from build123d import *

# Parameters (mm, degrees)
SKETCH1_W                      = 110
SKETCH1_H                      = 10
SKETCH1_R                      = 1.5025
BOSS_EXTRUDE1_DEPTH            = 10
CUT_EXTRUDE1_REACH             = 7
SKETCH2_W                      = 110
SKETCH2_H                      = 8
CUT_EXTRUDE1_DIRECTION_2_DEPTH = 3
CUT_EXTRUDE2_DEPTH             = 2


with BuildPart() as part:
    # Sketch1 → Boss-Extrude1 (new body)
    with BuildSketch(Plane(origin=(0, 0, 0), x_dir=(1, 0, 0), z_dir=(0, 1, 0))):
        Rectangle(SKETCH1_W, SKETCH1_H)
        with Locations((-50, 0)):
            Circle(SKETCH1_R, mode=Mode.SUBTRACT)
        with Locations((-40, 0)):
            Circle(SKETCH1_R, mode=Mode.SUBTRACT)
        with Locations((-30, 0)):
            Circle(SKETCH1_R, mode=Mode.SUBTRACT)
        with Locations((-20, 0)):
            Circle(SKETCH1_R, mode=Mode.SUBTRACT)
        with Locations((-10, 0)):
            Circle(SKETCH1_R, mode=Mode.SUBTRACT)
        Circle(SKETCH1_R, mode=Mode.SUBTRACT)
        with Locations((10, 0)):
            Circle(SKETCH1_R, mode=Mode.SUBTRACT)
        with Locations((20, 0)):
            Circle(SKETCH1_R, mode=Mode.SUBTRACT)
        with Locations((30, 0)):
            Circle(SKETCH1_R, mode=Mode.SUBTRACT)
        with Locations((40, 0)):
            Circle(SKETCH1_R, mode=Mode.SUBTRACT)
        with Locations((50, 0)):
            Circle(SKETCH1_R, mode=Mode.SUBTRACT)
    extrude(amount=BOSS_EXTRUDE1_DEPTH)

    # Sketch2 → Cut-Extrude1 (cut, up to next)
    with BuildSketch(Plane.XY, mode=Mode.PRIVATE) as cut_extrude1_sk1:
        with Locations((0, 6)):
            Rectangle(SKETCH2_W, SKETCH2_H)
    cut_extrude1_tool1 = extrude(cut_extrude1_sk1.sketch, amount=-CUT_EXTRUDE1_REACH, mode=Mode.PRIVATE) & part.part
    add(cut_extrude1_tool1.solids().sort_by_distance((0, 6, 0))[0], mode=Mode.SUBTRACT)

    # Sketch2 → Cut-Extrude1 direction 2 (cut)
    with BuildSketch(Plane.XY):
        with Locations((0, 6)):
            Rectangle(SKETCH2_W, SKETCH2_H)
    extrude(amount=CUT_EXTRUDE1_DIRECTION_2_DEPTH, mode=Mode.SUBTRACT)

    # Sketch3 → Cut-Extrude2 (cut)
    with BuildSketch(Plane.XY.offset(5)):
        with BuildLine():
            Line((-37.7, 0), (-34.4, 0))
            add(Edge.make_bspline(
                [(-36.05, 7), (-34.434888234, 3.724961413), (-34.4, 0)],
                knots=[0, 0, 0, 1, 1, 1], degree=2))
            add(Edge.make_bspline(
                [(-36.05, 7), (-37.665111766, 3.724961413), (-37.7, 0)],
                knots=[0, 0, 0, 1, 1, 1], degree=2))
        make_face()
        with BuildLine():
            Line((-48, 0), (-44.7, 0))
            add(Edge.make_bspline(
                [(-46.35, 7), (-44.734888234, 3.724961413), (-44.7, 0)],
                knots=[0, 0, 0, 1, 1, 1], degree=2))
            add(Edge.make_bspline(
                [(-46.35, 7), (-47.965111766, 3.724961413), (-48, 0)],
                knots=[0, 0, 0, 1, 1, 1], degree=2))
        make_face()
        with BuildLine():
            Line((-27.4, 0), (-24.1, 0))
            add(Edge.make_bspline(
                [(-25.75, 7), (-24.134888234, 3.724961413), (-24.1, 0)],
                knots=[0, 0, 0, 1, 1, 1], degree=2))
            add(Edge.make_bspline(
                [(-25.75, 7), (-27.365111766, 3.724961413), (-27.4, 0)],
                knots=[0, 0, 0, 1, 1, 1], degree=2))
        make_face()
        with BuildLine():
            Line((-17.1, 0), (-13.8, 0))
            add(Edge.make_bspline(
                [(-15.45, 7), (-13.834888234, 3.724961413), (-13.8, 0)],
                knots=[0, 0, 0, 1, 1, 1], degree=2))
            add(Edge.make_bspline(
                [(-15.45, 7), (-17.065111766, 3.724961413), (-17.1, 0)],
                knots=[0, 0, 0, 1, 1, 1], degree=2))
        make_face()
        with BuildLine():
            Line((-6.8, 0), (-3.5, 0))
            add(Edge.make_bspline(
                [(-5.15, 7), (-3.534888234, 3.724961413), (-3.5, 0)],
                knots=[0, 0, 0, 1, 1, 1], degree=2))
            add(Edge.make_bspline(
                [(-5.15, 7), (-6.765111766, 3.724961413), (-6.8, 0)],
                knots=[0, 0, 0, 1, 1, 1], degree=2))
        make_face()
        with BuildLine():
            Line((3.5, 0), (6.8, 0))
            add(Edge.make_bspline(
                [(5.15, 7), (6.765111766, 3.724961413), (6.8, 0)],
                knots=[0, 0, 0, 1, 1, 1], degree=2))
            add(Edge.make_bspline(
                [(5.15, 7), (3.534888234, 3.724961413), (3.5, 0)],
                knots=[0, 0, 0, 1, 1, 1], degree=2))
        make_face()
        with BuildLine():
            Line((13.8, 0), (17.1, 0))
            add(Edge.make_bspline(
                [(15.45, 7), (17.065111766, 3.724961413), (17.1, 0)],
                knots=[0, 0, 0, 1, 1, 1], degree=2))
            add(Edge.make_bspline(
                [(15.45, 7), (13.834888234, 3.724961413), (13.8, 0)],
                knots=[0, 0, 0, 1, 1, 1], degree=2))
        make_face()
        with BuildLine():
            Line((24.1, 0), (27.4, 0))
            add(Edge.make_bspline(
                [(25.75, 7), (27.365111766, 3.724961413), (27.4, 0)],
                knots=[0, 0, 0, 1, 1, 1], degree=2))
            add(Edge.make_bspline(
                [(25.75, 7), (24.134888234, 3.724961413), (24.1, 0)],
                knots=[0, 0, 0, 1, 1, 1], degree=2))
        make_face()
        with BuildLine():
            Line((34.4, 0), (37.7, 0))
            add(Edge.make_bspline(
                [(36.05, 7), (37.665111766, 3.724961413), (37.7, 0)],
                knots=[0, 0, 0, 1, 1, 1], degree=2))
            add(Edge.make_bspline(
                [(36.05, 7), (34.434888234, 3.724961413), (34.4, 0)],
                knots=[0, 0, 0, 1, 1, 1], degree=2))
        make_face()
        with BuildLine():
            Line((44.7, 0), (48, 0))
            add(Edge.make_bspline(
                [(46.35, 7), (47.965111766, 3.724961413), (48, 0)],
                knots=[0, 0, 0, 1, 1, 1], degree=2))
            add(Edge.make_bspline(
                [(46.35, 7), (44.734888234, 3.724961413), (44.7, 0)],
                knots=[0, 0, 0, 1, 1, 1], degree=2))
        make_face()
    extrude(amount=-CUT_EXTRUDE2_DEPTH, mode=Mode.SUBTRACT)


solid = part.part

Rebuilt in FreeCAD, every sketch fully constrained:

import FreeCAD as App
import Part
import Sketcher


def add_polygon(sketch, points):
    """Adds a closed chain of lines whose ends are joined by coincident constraints."""
    first, n = sketch.GeometryCount, len(points)
    for a, b in zip(points, points[1:] + points[:1]):
        sketch.addGeometry(Part.LineSegment(App.Vector(*a, 0), App.Vector(*b, 0)), False)
    for i in range(n):
        sketch.addConstraint(Sketcher.Constraint("Coincident", first + i, 2, first + (i + 1) % n, 1))

doc = App.newDocument("Part")
body = doc.addObject("PartDesign::Body", "Body")

# Sketch on XZ plane
sketch1 = body.newObject("Sketcher::SketchObject", "Sketch")
sketch1.AttachmentSupport = (doc.getObject("XZ_Plane"), [""])
sketch1.MapMode = "FlatFace"
add_polygon(sketch1, [(-55, -5), (-55, 5), (55, 5), (55, -5)])  # lines 0-3
sketch1.addGeometry(Part.Circle(App.Vector(-50, 0, 0), App.Vector(0, 0, 1), 1.5), False)  # 4
sketch1.addGeometry(Part.Circle(App.Vector(-40, 0, 0), App.Vector(0, 0, 1), 1.5), False)  # 5
sketch1.addGeometry(Part.Circle(App.Vector(-30, 0, 0), App.Vector(0, 0, 1), 1.5), False)  # 6
sketch1.addGeometry(Part.Circle(App.Vector(-20, 0, 0), App.Vector(0, 0, 1), 1.5), False)  # 7
sketch1.addGeometry(Part.Circle(App.Vector(-10, 0, 0), App.Vector(0, 0, 1), 1.5), False)  # 8
sketch1.addGeometry(Part.Circle(App.Vector(0, 0, 0), App.Vector(0, 0, 1), 1.5), False)  # 9
sketch1.addGeometry(Part.Circle(App.Vector(10, 0, 0), App.Vector(0, 0, 1), 1.5), False)  # 10
sketch1.addGeometry(Part.Circle(App.Vector(20, 0, 0), App.Vector(0, 0, 1), 1.5), False)  # 11
sketch1.addGeometry(Part.Circle(App.Vector(30, 0, 0), App.Vector(0, 0, 1), 1.5), False)  # 12
sketch1.addGeometry(Part.Circle(App.Vector(40, 0, 0), App.Vector(0, 0, 1), 1.5), False)  # 13
sketch1.addGeometry(Part.Circle(App.Vector(50, 0, 0), App.Vector(0, 0, 1), 1.5), False)  # 14
sketch1.addConstraint([
    Sketcher.Constraint("Vertical", 0),
    Sketcher.Constraint("Horizontal", 1),
    Sketcher.Constraint("Vertical", 2),
    Sketcher.Constraint("Horizontal", 3),
    Sketcher.Constraint("Coincident", 9, 3, -1, 1),
    Sketcher.Constraint("Equal", 4, 5),
    Sketcher.Constraint("Equal", 5, 6),
    Sketcher.Constraint("Equal", 6, 7),
    Sketcher.Constraint("Equal", 7, 8),
    Sketcher.Constraint("Equal", 8, 9),
    Sketcher.Constraint("Equal", 9, 10),
    Sketcher.Constraint("Equal", 10, 11),
    Sketcher.Constraint("Equal", 11, 12),
    Sketcher.Constraint("Equal", 12, 13),
    Sketcher.Constraint("Equal", 13, 14),
    Sketcher.Constraint("Symmetric", 8, 3, 10, 3, -1, 1),
    Sketcher.Constraint("Symmetric", 7, 3, 11, 3, -1, 1),
    Sketcher.Constraint("Symmetric", 6, 3, 12, 3, -1, 1),
    Sketcher.Constraint("Symmetric", 5, 3, 13, 3, -1, 1),
    Sketcher.Constraint("Symmetric", 4, 3, 14, 3, -1, 1),
    Sketcher.Constraint("Symmetric", 0, 2, 2, 2, -1, 1),
    Sketcher.Constraint("PointOnObject", 4, 3, -1),
    Sketcher.Constraint("PointOnObject", 5, 3, -1),
    Sketcher.Constraint("PointOnObject", 6, 3, -1),
    Sketcher.Constraint("PointOnObject", 7, 3, -1),
    Sketcher.Constraint("PointOnObject", 8, 3, -1),
    Sketcher.Constraint("DistanceX", 1, 1, 1, 2, 110.0),
    Sketcher.Constraint("DistanceY", 0, 1, 0, 2, 10.0),
    Sketcher.Constraint("Diameter", 4, 3.005),
    Sketcher.Constraint("DistanceX", 4, 3, -1, 1, 50.0),
    Sketcher.Constraint("DistanceX", 5, 3, -1, 1, 40.0),
    Sketcher.Constraint("DistanceX", 6, 3, -1, 1, 30.0),
    Sketcher.Constraint("DistanceX", 7, 3, -1, 1, 20.0),
    Sketcher.Constraint("DistanceX", 8, 3, -1, 1, 10.0),
])
pad1 = body.newObject("PartDesign::Pad", "Pad")
pad1.Profile = sketch1
pad1.Length = 10
pad1.Reversed = True

# Sketch on XY plane
sketch2 = body.newObject("Sketcher::SketchObject", "Sketch001")
sketch2.AttachmentSupport = (doc.getObject("XY_Plane"), [""])
sketch2.MapMode = "FlatFace"
add_polygon(sketch2, [(-55, 10), (-55, 2), (55, 2), (55, 10)])  # lines 0-3
sketch2.addConstraint([
    Sketcher.Constraint("Vertical", 0),
    Sketcher.Constraint("Horizontal", 1),
    Sketcher.Constraint("Vertical", 2),
    Sketcher.Constraint("Horizontal", 3),
    Sketcher.Constraint("DistanceX", 1, 1, 1, 2, 110.0),
    Sketcher.Constraint("DistanceY", 0, 2, 0, 1, 8.0),
    Sketcher.Constraint("DistanceX", 0, 2, -1, 1, 55.0),
    Sketcher.Constraint("DistanceY", -1, 1, 0, 2, 2.0),
])
pocket1 = body.newObject("PartDesign::Pocket", "Pocket")
pocket1.Profile = sketch2
pocket1.Length = 5

# Sketch on XY plane
sketch3 = body.newObject("Sketcher::SketchObject", "Sketch002")
sketch3.AttachmentSupport = (doc.getObject("XY_Plane"), [""])
sketch3.MapMode = "FlatFace"
add_polygon(sketch3, [(-55, 10), (-55, 2), (55, 2), (55, 10)])  # lines 0-3
sketch3.addConstraint([
    Sketcher.Constraint("Vertical", 0),
    Sketcher.Constraint("Horizontal", 1),
    Sketcher.Constraint("Vertical", 2),
    Sketcher.Constraint("Horizontal", 3),
    Sketcher.Constraint("DistanceX", 1, 1, 1, 2, 110.0),
    Sketcher.Constraint("DistanceY", 0, 2, 0, 1, 8.0),
    Sketcher.Constraint("DistanceX", 0, 2, -1, 1, 55.0),
    Sketcher.Constraint("DistanceY", -1, 1, 0, 2, 2.0),
])
pocket2 = body.newObject("PartDesign::Pocket", "Pocket001")
pocket2.Profile = sketch3
pocket2.Length = 3
pocket2.Reversed = True

# Sketch on XY plane
sketch4 = body.newObject("Sketcher::SketchObject", "Sketch003")
sketch4.AttachmentSupport = (doc.getObject("XY_Plane"), [""])
sketch4.MapMode = "FlatFace"
sketch4.AttachmentOffset = App.Placement(App.Vector(0, 0, 5), App.Rotation())
sketch4.addGeometry([
    Part.LineSegment(App.Vector(-37.7, 0, 0), App.Vector(-34.4, 0, 0)),  # 0
    Part.BSplineCurve([App.Vector(-36.05, 7, 0), App.Vector(-34.434888, 3.724961, 0), App.Vector(-34.4, 0, 0)], [3, 3], [0, 1], False, 2, [1, 1, 1], False),  # 1
    Part.BSplineCurve([App.Vector(-36.05, 7, 0), App.Vector(-37.665112, 3.724961, 0), App.Vector(-37.7, 0, 0)], [3, 3], [0, 1], False, 2, [1, 1, 1], False),  # 2
    Part.LineSegment(App.Vector(-48, 0, 0), App.Vector(-44.7, 0, 0)),  # 3
    Part.BSplineCurve([App.Vector(-46.35, 7, 0), App.Vector(-44.734888, 3.724961, 0), App.Vector(-44.7, 0, 0)], [3, 3], [0, 1], False, 2, [1, 1, 1], False),  # 4
    Part.BSplineCurve([App.Vector(-46.35, 7, 0), App.Vector(-47.965112, 3.724961, 0), App.Vector(-48, 0, 0)], [3, 3], [0, 1], False, 2, [1, 1, 1], False),  # 5
    Part.LineSegment(App.Vector(-27.4, 0, 0), App.Vector(-24.1, 0, 0)),  # 6
    Part.BSplineCurve([App.Vector(-25.75, 7, 0), App.Vector(-24.134888, 3.724961, 0), App.Vector(-24.1, 0, 0)], [3, 3], [0, 1], False, 2, [1, 1, 1], False),  # 7
    Part.BSplineCurve([App.Vector(-25.75, 7, 0), App.Vector(-27.365112, 3.724961, 0), App.Vector(-27.4, 0, 0)], [3, 3], [0, 1], False, 2, [1, 1, 1], False),  # 8
    Part.LineSegment(App.Vector(-17.1, 0, 0), App.Vector(-13.8, 0, 0)),  # 9
    Part.BSplineCurve([App.Vector(-15.45, 7, 0), App.Vector(-13.834888, 3.724961, 0), App.Vector(-13.8, 0, 0)], [3, 3], [0, 1], False, 2, [1, 1, 1], False),  # 10
    Part.BSplineCurve([App.Vector(-15.45, 7, 0), App.Vector(-17.065112, 3.724961, 0), App.Vector(-17.1, 0, 0)], [3, 3], [0, 1], False, 2, [1, 1, 1], False),  # 11
    Part.LineSegment(App.Vector(-6.8, 0, 0), App.Vector(-3.5, 0, 0)),  # 12
    Part.BSplineCurve([App.Vector(-5.15, 7, 0), App.Vector(-3.534888, 3.724961, 0), App.Vector(-3.5, 0, 0)], [3, 3], [0, 1], False, 2, [1, 1, 1], False),  # 13
    Part.BSplineCurve([App.Vector(-5.15, 7, 0), App.Vector(-6.765112, 3.724961, 0), App.Vector(-6.8, 0, 0)], [3, 3], [0, 1], False, 2, [1, 1, 1], False),  # 14
    Part.LineSegment(App.Vector(3.5, 0, 0), App.Vector(6.8, 0, 0)),  # 15
    Part.BSplineCurve([App.Vector(5.15, 7, 0), App.Vector(6.765112, 3.724961, 0), App.Vector(6.8, 0, 0)], [3, 3], [0, 1], False, 2, [1, 1, 1], False),  # 16
    Part.BSplineCurve([App.Vector(5.15, 7, 0), App.Vector(3.534888, 3.724961, 0), App.Vector(3.5, 0, 0)], [3, 3], [0, 1], False, 2, [1, 1, 1], False),  # 17
    Part.LineSegment(App.Vector(13.8, 0, 0), App.Vector(17.1, 0, 0)),  # 18
    Part.BSplineCurve([App.Vector(15.45, 7, 0), App.Vector(17.065112, 3.724961, 0), App.Vector(17.1, 0, 0)], [3, 3], [0, 1], False, 2, [1, 1, 1], False),  # 19
    Part.BSplineCurve([App.Vector(15.45, 7, 0), App.Vector(13.834888, 3.724961, 0), App.Vector(13.8, 0, 0)], [3, 3], [0, 1], False, 2, [1, 1, 1], False),  # 20
    Part.LineSegment(App.Vector(24.1, 0, 0), App.Vector(27.4, 0, 0)),  # 21
    Part.BSplineCurve([App.Vector(25.75, 7, 0), App.Vector(27.365112, 3.724961, 0), App.Vector(27.4, 0, 0)], [3, 3], [0, 1], False, 2, [1, 1, 1], False),  # 22
    Part.BSplineCurve([App.Vector(25.75, 7, 0), App.Vector(24.134888, 3.724961, 0), App.Vector(24.1, 0, 0)], [3, 3], [0, 1], False, 2, [1, 1, 1], False),  # 23
    Part.LineSegment(App.Vector(34.4, 0, 0), App.Vector(37.7, 0, 0)),  # 24
    Part.BSplineCurve([App.Vector(36.05, 7, 0), App.Vector(37.665112, 3.724961, 0), App.Vector(37.7, 0, 0)], [3, 3], [0, 1], False, 2, [1, 1, 1], False),  # 25
    Part.BSplineCurve([App.Vector(36.05, 7, 0), App.Vector(34.434888, 3.724961, 0), App.Vector(34.4, 0, 0)], [3, 3], [0, 1], False, 2, [1, 1, 1], False),  # 26
    Part.LineSegment(App.Vector(44.7, 0, 0), App.Vector(48, 0, 0)),  # 27
    Part.BSplineCurve([App.Vector(46.35, 7, 0), App.Vector(47.965112, 3.724961, 0), App.Vector(48, 0, 0)], [3, 3], [0, 1], False, 2, [1, 1, 1], False),  # 28
    Part.BSplineCurve([App.Vector(46.35, 7, 0), App.Vector(44.734888, 3.724961, 0), App.Vector(44.7, 0, 0)], [3, 3], [0, 1], False, 2, [1, 1, 1], False),  # 29
], False)
sketch4.addConstraint([
    Sketcher.Constraint("Block", 1),
    Sketcher.Constraint("Block", 2),
    Sketcher.Constraint("Block", 4),
    Sketcher.Constraint("Block", 5),
    Sketcher.Constraint("Block", 7),
    Sketcher.Constraint("Block", 8),
    Sketcher.Constraint("Block", 10),
    Sketcher.Constraint("Block", 11),
    Sketcher.Constraint("Block", 13),
    Sketcher.Constraint("Block", 14),
    Sketcher.Constraint("Block", 16),
    Sketcher.Constraint("Block", 17),
    Sketcher.Constraint("Block", 19),
    Sketcher.Constraint("Block", 20),
    Sketcher.Constraint("Block", 22),
    Sketcher.Constraint("Block", 23),
    Sketcher.Constraint("Block", 25),
    Sketcher.Constraint("Block", 26),
    Sketcher.Constraint("Block", 28),
    Sketcher.Constraint("Block", 29),
    Sketcher.Constraint("Coincident", 0, 2, 1, 2),
    Sketcher.Constraint("Coincident", 2, 2, 0, 1),
    Sketcher.Constraint("Coincident", 3, 2, 4, 2),
    Sketcher.Constraint("Coincident", 5, 2, 3, 1),
    Sketcher.Constraint("Coincident", 6, 2, 7, 2),
    Sketcher.Constraint("Coincident", 8, 2, 6, 1),
    Sketcher.Constraint("Coincident", 9, 2, 10, 2),
    Sketcher.Constraint("Coincident", 11, 2, 9, 1),
    Sketcher.Constraint("Coincident", 12, 2, 13, 2),
    Sketcher.Constraint("Coincident", 14, 2, 12, 1),
    Sketcher.Constraint("Coincident", 15, 2, 16, 2),
    Sketcher.Constraint("Coincident", 17, 2, 15, 1),
    Sketcher.Constraint("Coincident", 18, 2, 19, 2),
    Sketcher.Constraint("Coincident", 20, 2, 18, 1),
    Sketcher.Constraint("Coincident", 21, 2, 22, 2),
    Sketcher.Constraint("Coincident", 23, 2, 21, 1),
    Sketcher.Constraint("Coincident", 24, 2, 25, 2),
    Sketcher.Constraint("Coincident", 26, 2, 24, 1),
    Sketcher.Constraint("Coincident", 27, 2, 28, 2),
    Sketcher.Constraint("Coincident", 29, 2, 27, 1),
])
pocket3 = body.newObject("PartDesign::Pocket", "Pocket002")
pocket3.Profile = sketch4
pocket3.Length = 2

doc.recompute()
